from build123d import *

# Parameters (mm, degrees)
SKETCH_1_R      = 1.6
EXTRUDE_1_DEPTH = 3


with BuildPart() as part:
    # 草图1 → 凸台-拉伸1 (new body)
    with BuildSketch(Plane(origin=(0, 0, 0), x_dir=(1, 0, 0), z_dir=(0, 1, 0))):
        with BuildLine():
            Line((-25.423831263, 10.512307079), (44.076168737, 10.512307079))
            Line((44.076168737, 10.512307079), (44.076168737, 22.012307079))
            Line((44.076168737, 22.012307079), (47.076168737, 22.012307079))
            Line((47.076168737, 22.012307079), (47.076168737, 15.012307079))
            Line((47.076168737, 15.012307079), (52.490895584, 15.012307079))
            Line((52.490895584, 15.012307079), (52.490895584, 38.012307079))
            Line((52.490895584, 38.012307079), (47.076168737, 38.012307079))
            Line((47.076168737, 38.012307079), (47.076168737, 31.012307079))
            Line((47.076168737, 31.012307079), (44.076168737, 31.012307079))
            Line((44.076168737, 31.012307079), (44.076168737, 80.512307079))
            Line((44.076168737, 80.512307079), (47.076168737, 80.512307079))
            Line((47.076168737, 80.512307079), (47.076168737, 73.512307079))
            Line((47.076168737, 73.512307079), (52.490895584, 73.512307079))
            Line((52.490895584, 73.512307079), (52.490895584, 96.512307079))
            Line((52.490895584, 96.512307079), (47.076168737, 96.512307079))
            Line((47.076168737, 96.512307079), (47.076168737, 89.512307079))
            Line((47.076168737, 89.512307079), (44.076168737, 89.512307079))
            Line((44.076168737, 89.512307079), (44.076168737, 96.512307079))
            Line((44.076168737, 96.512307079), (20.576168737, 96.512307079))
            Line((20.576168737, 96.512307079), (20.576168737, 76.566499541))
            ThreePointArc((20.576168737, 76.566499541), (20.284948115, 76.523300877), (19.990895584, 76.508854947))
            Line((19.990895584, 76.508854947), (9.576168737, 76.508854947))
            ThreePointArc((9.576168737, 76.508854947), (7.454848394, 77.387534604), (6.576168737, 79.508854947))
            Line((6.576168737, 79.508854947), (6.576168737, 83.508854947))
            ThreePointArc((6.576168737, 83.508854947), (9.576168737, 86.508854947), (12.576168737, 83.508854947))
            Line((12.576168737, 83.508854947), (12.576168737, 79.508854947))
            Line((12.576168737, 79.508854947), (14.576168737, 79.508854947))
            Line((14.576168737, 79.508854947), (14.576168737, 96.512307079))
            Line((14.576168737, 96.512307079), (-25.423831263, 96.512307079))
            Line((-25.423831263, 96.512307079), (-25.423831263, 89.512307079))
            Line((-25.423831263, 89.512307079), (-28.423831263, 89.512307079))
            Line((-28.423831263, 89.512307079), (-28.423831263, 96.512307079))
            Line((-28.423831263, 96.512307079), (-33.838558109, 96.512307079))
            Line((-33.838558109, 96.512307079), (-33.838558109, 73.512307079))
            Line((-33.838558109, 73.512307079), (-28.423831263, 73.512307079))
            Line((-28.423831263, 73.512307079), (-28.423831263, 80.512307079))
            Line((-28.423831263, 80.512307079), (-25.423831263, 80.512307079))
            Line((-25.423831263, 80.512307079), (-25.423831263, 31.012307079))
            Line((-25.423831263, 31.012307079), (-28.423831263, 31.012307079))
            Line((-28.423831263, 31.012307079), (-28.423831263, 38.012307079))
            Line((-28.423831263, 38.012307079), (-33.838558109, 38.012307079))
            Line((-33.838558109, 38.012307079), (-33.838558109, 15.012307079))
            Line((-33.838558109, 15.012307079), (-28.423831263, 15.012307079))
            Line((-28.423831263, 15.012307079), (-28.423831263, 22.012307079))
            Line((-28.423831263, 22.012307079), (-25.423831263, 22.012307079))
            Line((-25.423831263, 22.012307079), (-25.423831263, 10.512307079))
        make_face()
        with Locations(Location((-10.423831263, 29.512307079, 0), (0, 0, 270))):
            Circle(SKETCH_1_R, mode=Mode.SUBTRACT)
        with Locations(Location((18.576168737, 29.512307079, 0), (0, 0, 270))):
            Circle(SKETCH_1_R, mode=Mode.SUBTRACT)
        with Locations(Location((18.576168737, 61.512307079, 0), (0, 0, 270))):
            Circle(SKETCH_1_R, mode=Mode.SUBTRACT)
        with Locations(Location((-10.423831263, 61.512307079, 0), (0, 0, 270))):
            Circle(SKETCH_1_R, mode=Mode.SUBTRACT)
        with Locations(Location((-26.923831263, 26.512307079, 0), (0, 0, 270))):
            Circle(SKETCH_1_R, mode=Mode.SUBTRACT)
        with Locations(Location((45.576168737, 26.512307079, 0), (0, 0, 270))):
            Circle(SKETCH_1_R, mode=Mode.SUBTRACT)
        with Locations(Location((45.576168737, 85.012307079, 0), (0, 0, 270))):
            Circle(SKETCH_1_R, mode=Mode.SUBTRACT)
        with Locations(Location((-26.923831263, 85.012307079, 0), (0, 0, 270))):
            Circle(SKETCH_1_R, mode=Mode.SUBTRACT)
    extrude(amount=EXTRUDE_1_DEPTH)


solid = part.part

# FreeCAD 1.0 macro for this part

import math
import FreeCAD as App
import Part
import Sketcher

V = App.Vector

doc = App.newDocument("Part")
body = doc.addObject("PartDesign::Body", "Body")

sketch1 = body.newObject("Sketcher::SketchObject", "Sketch")
sketch1.AttachmentSupport = (doc.getObject("XZ_Plane"), [""])
sketch1.MapMode = "FlatFace"
sketch1.addGeometry([
    Part.LineSegment(V(-25.4, -10.5, 0), V(44.1, -10.5, 0)),
    Part.LineSegment(V(44.1, -10.5, 0), V(44.1, -22, 0)),
    Part.LineSegment(V(44.1, -22, 0), V(47.1, -22, 0)),
    Part.LineSegment(V(47.1, -22, 0), V(47.1, -15, 0)),
    Part.LineSegment(V(47.1, -15, 0), V(52.5, -15, 0)),
    Part.LineSegment(V(52.5, -15, 0), V(52.5, -38, 0)),
    Part.LineSegment(V(52.5, -38, 0), V(47.1, -38, 0)),
    Part.LineSegment(V(47.1, -38, 0), V(47.1, -31, 0)),
    Part.LineSegment(V(47.1, -31, 0), V(44.1, -31, 0)),
    Part.LineSegment(V(44.1, -31, 0), V(44.1, -80.5, 0)),
    Part.LineSegment(V(44.1, -80.5, 0), V(47.1, -80.5, 0)),
    Part.LineSegment(V(47.1, -80.5, 0), V(47.1, -73.5, 0)),
    Part.LineSegment(V(47.1, -73.5, 0), V(52.5, -73.5, 0)),
    Part.LineSegment(V(52.5, -73.5, 0), V(52.5, -96.5, 0)),
    Part.LineSegment(V(52.5, -96.5, 0), V(47.1, -96.5, 0)),
    Part.LineSegment(V(47.1, -96.5, 0), V(47.1, -89.5, 0)),
    Part.LineSegment(V(47.1, -89.5, 0), V(44.1, -89.5, 0)),
    Part.LineSegment(V(44.1, -89.5, 0), V(44.1, -96.5, 0)),
    Part.LineSegment(V(44.1, -96.5, 0), V(20.6, -96.5, 0)),
    Part.LineSegment(V(20.6, -96.5, 0), V(20.6, -76.6, 0)),
    Part.ArcOfCircle(Part.Circle(V(20, -79.5, 0), V(0, 0, 1), 3), math.radians(78.75), math.radians(90)),
    Part.LineSegment(V(20, -76.5, 0), V(9.6, -76.5, 0)),
    Part.ArcOfCircle(Part.Circle(V(9.6, -79.5, 0), V(0, 0, 1), 3), math.radians(90), math.radians(180)),
    Part.LineSegment(V(6.6, -79.5, 0), V(6.6, -83.5, 0)),
    Part.ArcOfCircle(Part.Circle(V(9.6, -83.5, 0), V(0, 0, 1), 3), math.radians(180), math.radians(360)),
    Part.LineSegment(V(12.6, -83.5, 0), V(12.6, -79.5, 0)),
    Part.LineSegment(V(12.6, -79.5, 0), V(14.6, -79.5, 0)),
    Part.LineSegment(V(14.6, -79.5, 0), V(14.6, -96.5, 0)),
    Part.LineSegment(V(14.6, -96.5, 0), V(-25.4, -96.5, 0)),
    Part.LineSegment(V(-25.4, -96.5, 0), V(-25.4, -89.5, 0)),
    Part.LineSegment(V(-25.4, -89.5, 0), V(-28.4, -89.5, 0)),
    Part.LineSegment(V(-28.4, -89.5, 0), V(-28.4, -96.5, 0)),
    Part.LineSegment(V(-28.4, -96.5, 0), V(-33.8, -96.5, 0)),
    Part.LineSegment(V(-33.8, -96.5, 0), V(-33.8, -73.5, 0)),
    Part.LineSegment(V(-33.8, -73.5, 0), V(-28.4, -73.5, 0)),
    Part.LineSegment(V(-28.4, -73.5, 0), V(-28.4, -80.5, 0)),
    Part.LineSegment(V(-28.4, -80.5, 0), V(-25.4, -80.5, 0)),
    Part.LineSegment(V(-25.4, -80.5, 0), V(-25.4, -31, 0)),
    Part.LineSegment(V(-25.4, -31, 0), V(-28.4, -31, 0)),
    Part.LineSegment(V(-28.4, -31, 0), V(-28.4, -38, 0)),
    Part.LineSegment(V(-28.4, -38, 0), V(-33.8, -38, 0)),
    Part.LineSegment(V(-33.8, -38, 0), V(-33.8, -15, 0)),
    Part.LineSegment(V(-33.8, -15, 0), V(-28.4, -15, 0)),
    Part.LineSegment(V(-28.4, -15, 0), V(-28.4, -22, 0)),
    Part.LineSegment(V(-28.4, -22, 0), V(-25.4, -22, 0)),
    Part.LineSegment(V(-25.4, -22, 0), V(-25.4, -10.5, 0)),
    Part.Circle(V(-26.9, -26.5, 0), V(0, 0, 1), 1.6),
    Part.Circle(V(-10.4, -29.5, 0), V(0, 0, 1), 1.6),
    Part.Circle(V(18.6, -29.5, 0), V(0, 0, 1), 1.6),
    Part.Circle(V(45.6, -26.5, 0), V(0, 0, 1), 1.6),
    Part.Circle(V(-10.4, -61.5, 0), V(0, 0, 1), 1.6),
    Part.Circle(V(-26.9, -85, 0), V(0, 0, 1), 1.6),
    Part.Circle(V(18.6, -61.5, 0), V(0, 0, 1), 1.6),
    Part.Circle(V(45.6, -85, 0), V(0, 0, 1), 1.6),
], False)
sketch1.addConstraint([
    Sketcher.Constraint("Coincident", 0, 2, 1, 1),
    Sketcher.Constraint("Coincident", 1, 2, 2, 1),
    Sketcher.Constraint("Coincident", 2, 2, 3, 1),
    Sketcher.Constraint("Coincident", 3, 2, 4, 1),
    Sketcher.Constraint("Coincident", 4, 2, 5, 1),
    Sketcher.Constraint("Coincident", 5, 2, 6, 1),
    Sketcher.Constraint("Coincident", 6, 2, 7, 1),
    Sketcher.Constraint("Coincident", 7, 2, 8, 1),
    Sketcher.Constraint("Coincident", 8, 2, 9, 1),
    Sketcher.Constraint("Coincident", 9, 2, 10, 1),
    Sketcher.Constraint("Coincident", 10, 2, 11, 1),
    Sketcher.Constraint("Coincident", 11, 2, 12, 1),
    Sketcher.Constraint("Coincident", 12, 2, 13, 1),
    Sketcher.Constraint("Coincident", 13, 2, 14, 1),
    Sketcher.Constraint("Coincident", 14, 2, 15, 1),
    Sketcher.Constraint("Coincident", 15, 2, 16, 1),
    Sketcher.Constraint("Coincident", 16, 2, 17, 1),
    Sketcher.Constraint("Coincident", 17, 2, 18, 1),
    Sketcher.Constraint("Coincident", 18, 2, 19, 1),
    Sketcher.Constraint("Coincident", 19, 2, 20, 1),
    Sketcher.Constraint("Tangent", 20, 2, 21, 1),
    Sketcher.Constraint("Tangent", 21, 2, 22, 1),
    Sketcher.Constraint("Tangent", 22, 2, 23, 1),
    Sketcher.Constraint("Tangent", 23, 2, 24, 1),
    Sketcher.Constraint("Tangent", 24, 2, 25, 1),
    Sketcher.Constraint("Coincident", 25, 2, 26, 1),
    Sketcher.Constraint("Coincident", 26, 2, 27, 1),
    Sketcher.Constraint("Coincident", 27, 2, 28, 1),
    Sketcher.Constraint("Coincident", 28, 2, 29, 1),
    Sketcher.Constraint("Coincident", 29, 2, 30, 1),
    Sketcher.Constraint("Coincident", 30, 2, 31, 1),
    Sketcher.Constraint("Coincident", 31, 2, 32, 1),
    Sketcher.Constraint("Coincident", 32, 2, 33, 1),
    Sketcher.Constraint("Coincident", 33, 2, 34, 1),
    Sketcher.Constraint("Coincident", 34, 2, 35, 1),
    Sketcher.Constraint("Coincident", 35, 2, 36, 1),
    Sketcher.Constraint("Coincident", 36, 2, 37, 1),
    Sketcher.Constraint("Coincident", 37, 2, 38, 1),
    Sketcher.Constraint("Coincident", 38, 2, 39, 1),
    Sketcher.Constraint("Coincident", 39, 2, 40, 1),
    Sketcher.Constraint("Coincident", 40, 2, 41, 1),
    Sketcher.Constraint("Coincident", 41, 2, 42, 1),
    Sketcher.Constraint("Coincident", 42, 2, 43, 1),
    Sketcher.Constraint("Coincident", 43, 2, 44, 1),
    Sketcher.Constraint("Coincident", 44, 2, 45, 1),
    Sketcher.Constraint("Coincident", 45, 2, 0, 1),
    Sketcher.Constraint("Horizontal", 0),
    Sketcher.Constraint("Vertical", 1),
    Sketcher.Constraint("Horizontal", 2),
    Sketcher.Constraint("Vertical", 3),
    Sketcher.Constraint("Horizontal", 4),
    Sketcher.Constraint("Vertical", 5),
    Sketcher.Constraint("Horizontal", 6),
    Sketcher.Constraint("Vertical", 7),
    Sketcher.Constraint("Horizontal", 8),
    Sketcher.Constraint("Vertical", 9),
    Sketcher.Constraint("Horizontal", 10),
    Sketcher.Constraint("Vertical", 11),
    Sketcher.Constraint("Horizontal", 12),
    Sketcher.Constraint("Vertical", 13),
    Sketcher.Constraint("Horizontal", 14),
    Sketcher.Constraint("Vertical", 15),
    Sketcher.Constraint("Horizontal", 16),
    Sketcher.Constraint("Vertical", 17),
    Sketcher.Constraint("Horizontal", 18),
    Sketcher.Constraint("Vertical", 19),
    Sketcher.Constraint("Horizontal", 21),
    Sketcher.Constraint("Vertical", 23),
    Sketcher.Constraint("Vertical", 25),
    Sketcher.Constraint("Horizontal", 26),
    Sketcher.Constraint("Vertical", 27),
    Sketcher.Constraint("Horizontal", 28),
    Sketcher.Constraint("Vertical", 29),
    Sketcher.Constraint("Horizontal", 30),
    Sketcher.Constraint("Vertical", 31),
    Sketcher.Constraint("Horizontal", 32),
    Sketcher.Constraint("Vertical", 33),
    Sketcher.Constraint("Horizontal", 34),
    Sketcher.Constraint("Vertical", 35),
    Sketcher.Constraint("Horizontal", 36),
    Sketcher.Constraint("Vertical", 37),
    Sketcher.Constraint("Horizontal", 38),
    Sketcher.Constraint("Vertical", 39),
    Sketcher.Constraint("Horizontal", 40),
    Sketcher.Constraint("Vertical", 41),
    Sketcher.Constraint("Horizontal", 42),
    Sketcher.Constraint("Vertical", 43),
    Sketcher.Constraint("Horizontal", 44),
    Sketcher.Constraint("Vertical", 45),
    Sketcher.Constraint("Equal", 20, 22),
    Sketcher.Constraint("Equal", 22, 24),
    Sketcher.Constraint("Equal", 46, 47),
    Sketcher.Constraint("Equal", 47, 48),
    Sketcher.Constraint("Equal", 48, 49),
    Sketcher.Constraint("Equal", 49, 50),
    Sketcher.Constraint("Equal", 50, 51),
    Sketcher.Constraint("Equal", 51, 52),
    Sketcher.Constraint("Equal", 52, 53),
    Sketcher.Constraint("Horizontal", 47, 3, 48, 3),
    Sketcher.Constraint("Horizontal", 46, 3, 49, 3),
    Sketcher.Constraint("Horizontal", 50, 3, 52, 3),
    Sketcher.Constraint("Horizontal", 51, 3, 53, 3),
    Sketcher.Constraint("Horizontal", 14, 2, 17, 2),
    Sketcher.Constraint("Horizontal", 22, 2, 25, 2),
    Sketcher.Constraint("Horizontal", 18, 2, 27, 2),
    Sketcher.Constraint("Horizontal", 16, 2, 29, 2),
    Sketcher.Constraint("Horizontal", 28, 2, 31, 2),
    Sketcher.Constraint("Horizontal", 12, 2, 33, 2),
    Sketcher.Constraint("Horizontal", 10, 2, 35, 2),
    Sketcher.Constraint("Horizontal", 8, 2, 37, 2),
    Sketcher.Constraint("Horizontal", 6, 2, 39, 2),
    Sketcher.Constraint("Horizontal", 4, 2, 41, 2),
    Sketcher.Constraint("Horizontal", 2, 2, 43, 2),
    Sketcher.Constraint("Vertical", 47, 3, 50, 3),
    Sketcher.Constraint("Vertical", 46, 3, 51, 3),
    Sketcher.Constraint("Vertical", 48, 3, 52, 3),
    Sketcher.Constraint("Vertical", 49, 3, 53, 3),
    Sketcher.Constraint("Vertical", 3, 2, 6, 2),
    Sketcher.Constraint("Vertical", 1, 2, 8, 2),
    Sketcher.Constraint("Vertical", 7, 2, 10, 2),
    Sketcher.Constraint("Vertical", 5, 2, 12, 2),
    Sketcher.Constraint("Vertical", 11, 2, 14, 2),
    Sketcher.Constraint("Vertical", 9, 2, 16, 2),
    Sketcher.Constraint("Vertical", 31, 2, 34, 2),
    Sketcher.Constraint("Vertical", 29, 2, 36, 2),
    Sketcher.Constraint("Vertical", 35, 2, 38, 2),
    Sketcher.Constraint("Vertical", 33, 2, 40, 2),
    Sketcher.Constraint("Vertical", 39, 2, 42, 2),
    Sketcher.Constraint("Vertical", 37, 2, 44, 2),
    Sketcher.Constraint("Equal", 16, 30),
    Sketcher.Constraint("Equal", 14, 32),
    Sketcher.Constraint("Equal", 3, 7),
    Sketcher.Constraint("Equal", 7, 11),
    Sketcher.Constraint("Equal", 5, 13),
    Sketcher.Constraint("Equal", 11, 15),
    Sketcher.Constraint("Radius", 20, 3.0),
    Sketcher.Constraint("Diameter", 46, 3.2),
    Sketcher.Constraint("DistanceX", 2, 1, 2, 2, 3.0),
    Sketcher.Constraint("DistanceX", 26, 1, 26, 2, 2.0),
    Sketcher.Constraint("DistanceX", 28, 2, 28, 1, 40.0),
    Sketcher.Constraint("DistanceY", 3, 1, 3, 2, 7.0),
    Sketcher.Constraint("DistanceY", 5, 2, 5, 1, 23.0),
    Sketcher.Constraint("DistanceY", 23, 2, 23, 1, 4.0),
    Sketcher.Constraint("DistanceX", 0, 1, 0, 2, 69.5),
    Sketcher.Constraint("DistanceX", 18, 2, 18, 1, 23.5),
    Sketcher.Constraint("DistanceY", 1, 2, 1, 1, 11.5),
    Sketcher.Constraint("DistanceY", 9, 2, 9, 1, 49.5),
    Sketcher.Constraint("DistanceY", 47, 3, 46, 3, 3.0),
    Sketcher.Constraint("DistanceX", 47, 3, 22, 3, 20.0),
    Sketcher.Constraint("DistanceX", 47, 3, 48, 3, 29.0),
    Sketcher.Constraint("DistanceX", 48, 3, 49, 3, 27.0),
    Sketcher.Constraint("DistanceY", 50, 3, 47, 3, 32.0),
    Sketcher.Constraint("DistanceY", 49, 3, 0, 2, 16.0),
    Sketcher.Constraint("DistanceX", 46, 3, 0, 2, 71.0),
    Sketcher.Constraint("DistanceY", 51, 3, 50, 3, 23.5),
    Sketcher.Constraint("DistanceX", 20, 3, 12, 2, 32.5),
    Sketcher.Constraint("DistanceY", 19, 2, -1, 1, 76.5665),
    Sketcher.Constraint("DistanceX", 4, 1, 4, 2, 5.414727),
    Sketcher.Constraint("DistanceY", 19, 1, 19, 2, 19.945808),
    Sketcher.Constraint("DistanceX", -1, 1, 22, 3, 9.576169),
])
pad1 = body.newObject("PartDesign::Pad", "Pad")
pad1.Profile = sketch1
pad1.Length = 3
pad1.Reversed = True

doc.recompute()
